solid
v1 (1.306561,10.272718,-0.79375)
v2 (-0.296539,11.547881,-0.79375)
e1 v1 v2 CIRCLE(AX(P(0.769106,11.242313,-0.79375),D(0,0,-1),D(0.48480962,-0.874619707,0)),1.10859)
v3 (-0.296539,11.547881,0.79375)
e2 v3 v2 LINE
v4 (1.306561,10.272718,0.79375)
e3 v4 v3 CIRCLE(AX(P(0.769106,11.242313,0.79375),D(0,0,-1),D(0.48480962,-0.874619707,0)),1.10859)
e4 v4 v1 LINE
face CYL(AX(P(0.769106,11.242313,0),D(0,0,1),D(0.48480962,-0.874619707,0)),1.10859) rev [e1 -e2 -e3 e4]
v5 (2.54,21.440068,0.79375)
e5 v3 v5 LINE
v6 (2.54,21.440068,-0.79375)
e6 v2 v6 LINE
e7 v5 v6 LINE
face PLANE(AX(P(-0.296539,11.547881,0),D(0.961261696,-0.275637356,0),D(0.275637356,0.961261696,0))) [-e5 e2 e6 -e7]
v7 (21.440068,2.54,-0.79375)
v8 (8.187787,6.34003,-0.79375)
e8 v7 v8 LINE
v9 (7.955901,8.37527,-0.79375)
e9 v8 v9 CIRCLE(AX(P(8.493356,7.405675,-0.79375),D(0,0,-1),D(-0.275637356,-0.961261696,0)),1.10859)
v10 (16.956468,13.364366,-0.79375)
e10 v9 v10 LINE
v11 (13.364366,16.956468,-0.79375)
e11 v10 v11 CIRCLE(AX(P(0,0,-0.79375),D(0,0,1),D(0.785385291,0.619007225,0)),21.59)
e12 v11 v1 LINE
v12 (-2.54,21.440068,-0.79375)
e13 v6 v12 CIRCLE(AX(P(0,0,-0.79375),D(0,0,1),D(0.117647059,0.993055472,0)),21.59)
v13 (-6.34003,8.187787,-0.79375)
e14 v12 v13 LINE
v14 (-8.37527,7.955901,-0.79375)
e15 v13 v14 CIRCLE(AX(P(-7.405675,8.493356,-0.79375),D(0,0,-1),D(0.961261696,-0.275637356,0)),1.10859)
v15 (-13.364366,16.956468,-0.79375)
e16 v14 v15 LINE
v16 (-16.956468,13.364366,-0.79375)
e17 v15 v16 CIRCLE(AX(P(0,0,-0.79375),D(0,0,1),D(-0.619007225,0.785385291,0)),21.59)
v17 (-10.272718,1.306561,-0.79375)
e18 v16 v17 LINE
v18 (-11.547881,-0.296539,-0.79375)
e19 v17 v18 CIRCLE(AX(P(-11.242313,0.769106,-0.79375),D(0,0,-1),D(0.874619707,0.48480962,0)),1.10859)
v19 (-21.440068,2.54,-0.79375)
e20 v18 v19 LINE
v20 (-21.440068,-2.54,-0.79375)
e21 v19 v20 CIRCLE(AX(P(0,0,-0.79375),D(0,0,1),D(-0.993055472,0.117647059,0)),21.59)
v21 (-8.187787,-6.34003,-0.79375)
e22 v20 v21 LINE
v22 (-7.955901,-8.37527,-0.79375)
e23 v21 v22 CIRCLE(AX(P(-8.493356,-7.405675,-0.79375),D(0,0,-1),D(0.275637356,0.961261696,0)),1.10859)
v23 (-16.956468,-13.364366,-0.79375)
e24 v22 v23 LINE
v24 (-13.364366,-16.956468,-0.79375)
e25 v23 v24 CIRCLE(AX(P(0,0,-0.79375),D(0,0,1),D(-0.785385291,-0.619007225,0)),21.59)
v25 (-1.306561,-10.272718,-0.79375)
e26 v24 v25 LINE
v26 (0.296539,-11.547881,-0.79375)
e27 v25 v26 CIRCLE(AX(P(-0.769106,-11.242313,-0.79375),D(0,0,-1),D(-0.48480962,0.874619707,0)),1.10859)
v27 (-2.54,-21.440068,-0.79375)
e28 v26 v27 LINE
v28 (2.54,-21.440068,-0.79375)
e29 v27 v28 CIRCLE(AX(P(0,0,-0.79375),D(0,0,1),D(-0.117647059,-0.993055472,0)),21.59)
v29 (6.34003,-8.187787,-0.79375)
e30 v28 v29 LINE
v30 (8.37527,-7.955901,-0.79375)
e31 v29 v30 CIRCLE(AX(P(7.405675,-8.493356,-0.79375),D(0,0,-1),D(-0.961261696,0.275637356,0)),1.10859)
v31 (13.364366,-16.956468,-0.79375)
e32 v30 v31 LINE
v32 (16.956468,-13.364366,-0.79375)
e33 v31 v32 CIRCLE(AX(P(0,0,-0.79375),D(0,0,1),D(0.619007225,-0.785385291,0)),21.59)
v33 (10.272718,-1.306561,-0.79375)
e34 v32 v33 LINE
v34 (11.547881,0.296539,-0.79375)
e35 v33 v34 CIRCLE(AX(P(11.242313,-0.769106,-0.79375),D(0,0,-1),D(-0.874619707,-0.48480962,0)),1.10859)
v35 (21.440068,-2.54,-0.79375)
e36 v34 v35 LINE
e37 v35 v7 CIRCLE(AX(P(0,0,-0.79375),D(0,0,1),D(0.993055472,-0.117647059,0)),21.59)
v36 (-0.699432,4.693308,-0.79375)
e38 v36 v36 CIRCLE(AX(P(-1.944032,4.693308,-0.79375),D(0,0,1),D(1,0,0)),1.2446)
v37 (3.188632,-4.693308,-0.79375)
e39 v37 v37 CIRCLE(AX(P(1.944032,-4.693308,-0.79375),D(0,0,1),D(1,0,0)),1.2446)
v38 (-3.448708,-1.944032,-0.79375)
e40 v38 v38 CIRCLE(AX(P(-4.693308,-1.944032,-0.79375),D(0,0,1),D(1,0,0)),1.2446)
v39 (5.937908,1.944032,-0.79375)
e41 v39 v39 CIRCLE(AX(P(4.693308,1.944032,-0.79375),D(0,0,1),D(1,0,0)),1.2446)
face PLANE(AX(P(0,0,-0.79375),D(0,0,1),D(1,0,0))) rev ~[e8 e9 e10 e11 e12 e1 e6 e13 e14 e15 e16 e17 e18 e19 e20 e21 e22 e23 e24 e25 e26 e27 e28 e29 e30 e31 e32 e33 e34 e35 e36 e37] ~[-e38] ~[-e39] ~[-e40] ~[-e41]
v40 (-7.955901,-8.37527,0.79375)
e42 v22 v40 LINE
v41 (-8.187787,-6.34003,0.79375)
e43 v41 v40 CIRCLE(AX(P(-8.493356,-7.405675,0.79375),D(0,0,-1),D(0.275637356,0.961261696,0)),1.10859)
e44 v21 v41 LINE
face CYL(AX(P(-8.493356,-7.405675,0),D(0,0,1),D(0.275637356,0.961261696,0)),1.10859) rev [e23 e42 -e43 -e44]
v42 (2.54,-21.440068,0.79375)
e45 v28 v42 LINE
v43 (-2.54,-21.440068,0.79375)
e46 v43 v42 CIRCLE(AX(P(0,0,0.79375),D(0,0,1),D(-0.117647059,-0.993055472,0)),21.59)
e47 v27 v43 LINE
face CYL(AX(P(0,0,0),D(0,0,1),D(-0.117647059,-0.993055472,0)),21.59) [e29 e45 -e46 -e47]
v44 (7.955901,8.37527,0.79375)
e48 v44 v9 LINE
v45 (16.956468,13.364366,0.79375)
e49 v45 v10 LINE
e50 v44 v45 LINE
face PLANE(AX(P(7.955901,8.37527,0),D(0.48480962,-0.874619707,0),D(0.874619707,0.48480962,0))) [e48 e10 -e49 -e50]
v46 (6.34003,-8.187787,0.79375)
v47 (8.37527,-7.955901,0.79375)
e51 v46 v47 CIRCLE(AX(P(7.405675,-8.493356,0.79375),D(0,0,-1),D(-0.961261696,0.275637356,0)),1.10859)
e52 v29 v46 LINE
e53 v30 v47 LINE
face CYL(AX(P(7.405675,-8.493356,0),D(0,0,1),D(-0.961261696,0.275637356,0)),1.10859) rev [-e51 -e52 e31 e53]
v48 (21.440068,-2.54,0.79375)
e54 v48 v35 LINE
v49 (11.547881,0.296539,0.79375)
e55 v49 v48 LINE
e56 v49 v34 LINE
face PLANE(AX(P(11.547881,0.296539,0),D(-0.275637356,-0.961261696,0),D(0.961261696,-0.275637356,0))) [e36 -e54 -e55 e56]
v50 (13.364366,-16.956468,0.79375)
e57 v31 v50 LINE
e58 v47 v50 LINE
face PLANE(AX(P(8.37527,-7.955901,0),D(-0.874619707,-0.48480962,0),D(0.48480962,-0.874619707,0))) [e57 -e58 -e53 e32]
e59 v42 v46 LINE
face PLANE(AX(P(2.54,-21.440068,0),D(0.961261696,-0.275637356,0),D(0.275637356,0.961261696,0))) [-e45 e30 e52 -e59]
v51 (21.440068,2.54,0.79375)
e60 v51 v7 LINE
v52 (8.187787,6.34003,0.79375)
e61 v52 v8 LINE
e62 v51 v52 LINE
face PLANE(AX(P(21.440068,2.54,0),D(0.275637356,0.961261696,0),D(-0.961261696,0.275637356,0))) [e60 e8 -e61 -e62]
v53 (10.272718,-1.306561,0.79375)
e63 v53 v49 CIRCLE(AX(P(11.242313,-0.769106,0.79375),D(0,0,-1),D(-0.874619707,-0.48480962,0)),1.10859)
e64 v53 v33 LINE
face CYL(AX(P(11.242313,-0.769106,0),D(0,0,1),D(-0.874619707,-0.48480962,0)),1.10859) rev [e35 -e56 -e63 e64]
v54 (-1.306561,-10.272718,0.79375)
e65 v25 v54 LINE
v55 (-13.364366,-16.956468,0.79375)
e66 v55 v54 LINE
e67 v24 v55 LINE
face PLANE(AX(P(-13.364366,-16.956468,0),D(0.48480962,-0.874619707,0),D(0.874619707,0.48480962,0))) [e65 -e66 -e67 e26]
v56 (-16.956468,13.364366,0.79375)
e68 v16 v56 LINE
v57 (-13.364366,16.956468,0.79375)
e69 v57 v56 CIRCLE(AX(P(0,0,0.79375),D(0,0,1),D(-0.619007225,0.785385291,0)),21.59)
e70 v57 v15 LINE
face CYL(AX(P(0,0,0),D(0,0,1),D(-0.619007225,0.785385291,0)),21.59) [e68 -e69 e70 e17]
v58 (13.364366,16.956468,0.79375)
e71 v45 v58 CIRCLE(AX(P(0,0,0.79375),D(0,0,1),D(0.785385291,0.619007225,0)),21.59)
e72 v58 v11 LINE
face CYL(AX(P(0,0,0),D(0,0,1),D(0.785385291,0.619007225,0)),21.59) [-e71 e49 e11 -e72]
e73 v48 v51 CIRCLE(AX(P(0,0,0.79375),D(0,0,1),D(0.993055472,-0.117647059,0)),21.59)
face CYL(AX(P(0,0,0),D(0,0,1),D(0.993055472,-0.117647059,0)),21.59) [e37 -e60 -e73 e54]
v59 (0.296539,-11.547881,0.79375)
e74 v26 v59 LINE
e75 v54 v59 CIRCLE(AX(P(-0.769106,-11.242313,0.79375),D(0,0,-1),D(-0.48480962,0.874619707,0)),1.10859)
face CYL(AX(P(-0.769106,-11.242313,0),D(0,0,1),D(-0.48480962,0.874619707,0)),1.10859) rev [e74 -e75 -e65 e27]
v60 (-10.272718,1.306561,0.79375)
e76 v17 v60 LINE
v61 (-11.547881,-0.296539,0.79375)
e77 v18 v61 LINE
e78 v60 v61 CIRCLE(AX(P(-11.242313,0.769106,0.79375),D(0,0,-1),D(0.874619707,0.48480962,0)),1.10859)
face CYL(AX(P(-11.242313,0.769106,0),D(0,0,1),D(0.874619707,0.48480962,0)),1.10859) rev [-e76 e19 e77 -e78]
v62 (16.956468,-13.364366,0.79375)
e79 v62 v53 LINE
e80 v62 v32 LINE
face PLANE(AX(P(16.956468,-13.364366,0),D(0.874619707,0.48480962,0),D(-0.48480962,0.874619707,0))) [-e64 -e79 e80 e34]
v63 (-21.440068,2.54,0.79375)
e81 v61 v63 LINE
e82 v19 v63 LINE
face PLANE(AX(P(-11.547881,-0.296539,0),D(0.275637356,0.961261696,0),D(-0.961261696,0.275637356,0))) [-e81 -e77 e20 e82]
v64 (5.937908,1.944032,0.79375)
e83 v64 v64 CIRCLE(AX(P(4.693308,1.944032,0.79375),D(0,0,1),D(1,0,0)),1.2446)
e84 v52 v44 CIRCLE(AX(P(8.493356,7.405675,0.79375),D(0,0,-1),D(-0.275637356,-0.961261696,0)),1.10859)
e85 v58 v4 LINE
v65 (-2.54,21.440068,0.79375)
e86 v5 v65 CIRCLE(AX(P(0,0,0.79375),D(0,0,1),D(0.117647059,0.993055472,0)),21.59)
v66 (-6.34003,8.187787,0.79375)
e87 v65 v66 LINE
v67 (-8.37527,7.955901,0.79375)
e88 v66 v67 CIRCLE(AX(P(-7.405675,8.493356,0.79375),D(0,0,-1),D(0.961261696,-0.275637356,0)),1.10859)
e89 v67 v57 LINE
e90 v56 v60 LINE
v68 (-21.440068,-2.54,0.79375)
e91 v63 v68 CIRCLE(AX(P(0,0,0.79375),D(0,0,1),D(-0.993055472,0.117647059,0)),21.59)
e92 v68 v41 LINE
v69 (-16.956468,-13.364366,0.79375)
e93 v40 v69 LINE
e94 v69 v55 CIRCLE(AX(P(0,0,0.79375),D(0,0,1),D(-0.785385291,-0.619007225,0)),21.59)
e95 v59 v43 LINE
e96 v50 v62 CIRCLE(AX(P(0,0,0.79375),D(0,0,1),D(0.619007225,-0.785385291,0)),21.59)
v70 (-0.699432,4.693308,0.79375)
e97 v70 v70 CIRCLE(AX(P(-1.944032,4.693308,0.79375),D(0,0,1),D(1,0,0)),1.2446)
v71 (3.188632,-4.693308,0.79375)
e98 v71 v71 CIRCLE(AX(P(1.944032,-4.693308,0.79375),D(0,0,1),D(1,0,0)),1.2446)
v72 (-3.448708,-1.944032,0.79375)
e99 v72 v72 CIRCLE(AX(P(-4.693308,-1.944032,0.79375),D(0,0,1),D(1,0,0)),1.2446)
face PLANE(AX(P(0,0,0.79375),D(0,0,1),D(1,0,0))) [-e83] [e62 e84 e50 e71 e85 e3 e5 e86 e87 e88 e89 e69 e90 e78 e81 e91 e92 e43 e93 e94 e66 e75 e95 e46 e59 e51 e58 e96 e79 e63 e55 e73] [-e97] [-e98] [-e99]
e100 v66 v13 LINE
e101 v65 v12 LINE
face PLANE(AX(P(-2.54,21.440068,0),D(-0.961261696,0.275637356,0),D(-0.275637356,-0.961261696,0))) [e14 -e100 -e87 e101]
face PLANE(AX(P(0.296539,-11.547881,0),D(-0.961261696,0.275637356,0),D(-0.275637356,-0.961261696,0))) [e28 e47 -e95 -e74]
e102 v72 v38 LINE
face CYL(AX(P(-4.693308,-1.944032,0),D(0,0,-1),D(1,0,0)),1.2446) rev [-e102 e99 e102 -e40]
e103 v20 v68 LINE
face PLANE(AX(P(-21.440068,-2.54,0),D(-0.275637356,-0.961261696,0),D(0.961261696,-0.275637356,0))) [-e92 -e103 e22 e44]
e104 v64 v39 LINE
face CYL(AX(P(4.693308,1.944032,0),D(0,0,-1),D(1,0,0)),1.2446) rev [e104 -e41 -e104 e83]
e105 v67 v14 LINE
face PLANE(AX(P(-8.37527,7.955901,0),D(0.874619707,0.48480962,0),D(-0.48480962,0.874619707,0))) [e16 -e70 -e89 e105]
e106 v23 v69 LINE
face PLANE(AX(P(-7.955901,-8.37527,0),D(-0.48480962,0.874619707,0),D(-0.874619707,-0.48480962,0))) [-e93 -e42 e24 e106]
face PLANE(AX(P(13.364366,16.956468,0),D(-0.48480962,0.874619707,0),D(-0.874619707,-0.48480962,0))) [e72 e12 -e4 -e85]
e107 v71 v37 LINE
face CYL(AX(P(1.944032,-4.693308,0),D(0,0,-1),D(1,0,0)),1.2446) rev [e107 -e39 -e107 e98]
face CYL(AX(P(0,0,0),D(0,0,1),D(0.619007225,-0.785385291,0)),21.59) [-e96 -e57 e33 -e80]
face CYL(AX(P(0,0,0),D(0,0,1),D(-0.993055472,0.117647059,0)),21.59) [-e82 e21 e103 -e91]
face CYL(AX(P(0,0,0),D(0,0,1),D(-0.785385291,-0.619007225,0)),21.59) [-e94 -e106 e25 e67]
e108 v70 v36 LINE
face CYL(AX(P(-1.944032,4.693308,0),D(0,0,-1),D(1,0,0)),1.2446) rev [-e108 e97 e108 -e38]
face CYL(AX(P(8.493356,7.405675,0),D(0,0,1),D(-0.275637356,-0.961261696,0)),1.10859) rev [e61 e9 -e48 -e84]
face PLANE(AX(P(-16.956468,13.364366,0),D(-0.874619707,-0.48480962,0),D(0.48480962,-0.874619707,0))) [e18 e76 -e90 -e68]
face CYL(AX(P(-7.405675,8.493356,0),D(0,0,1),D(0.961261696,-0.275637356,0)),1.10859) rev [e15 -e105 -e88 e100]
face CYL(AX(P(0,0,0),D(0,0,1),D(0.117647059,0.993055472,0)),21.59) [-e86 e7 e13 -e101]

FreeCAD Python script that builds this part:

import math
import FreeCAD as App
import Part
import Sketcher
Q = App.Units.Quantity

doc = App.newDocument("Part")
body = doc.addObject("PartDesign::Body", "Body")

# Sketch on XY plane
sketch1 = body.newObject("Sketcher::SketchObject", "Sketch")
sketch1.AttachmentSupport = (doc.getObject("XY_Plane"), [""])
sketch1.MapMode = "FlatFace"
sketch1.addGeometry(Part.ArcOfCircle(Part.Circle(App.Vector(0, 0, 0), App.Vector(0, 0, 1), 21.6), math.radians(128.24), math.radians(141.76)), False)
sketch1.addGeometry(Part.LineSegment(App.Vector(-17, 13.4, 0), App.Vector(-10.3, 1.3, 0)), False)
sketch1.addGeometry(Part.ArcOfCircle(Part.Circle(App.Vector(-11.2, 0.8, 0), App.Vector(0, 0, 1), 1.1), math.radians(-106), math.radians(29)), False)
sketch1.addGeometry(Part.LineSegment(App.Vector(-11.5, -0.3, 0), App.Vector(-21.4, 2.5, 0)), False)
sketch1.addGeometry(Part.ArcOfCircle(Part.Circle(App.Vector(0, 0, 0), App.Vector(0, 0, 1), 21.6), math.radians(173.24), math.radians(186.76)), False)
sketch1.addGeometry(Part.LineSegment(App.Vector(-21.4, -2.5, 0), App.Vector(-8.2, -6.3, 0)), False)
sketch1.addGeometry(Part.ArcOfCircle(Part.Circle(App.Vector(-8.5, -7.4, 0), App.Vector(0, 0, 1), 1.1), math.radians(-61), math.radians(74)), False)
sketch1.addGeometry(Part.LineSegment(App.Vector(-8, -8.4, 0), App.Vector(-17, -13.4, 0)), False)
sketch1.addGeometry(Part.ArcOfCircle(Part.Circle(App.Vector(0, 0, 0), App.Vector(0, 0, 1), 21.6), math.radians(-141.76), math.radians(-128.24)), False)
sketch1.addGeometry(Part.LineSegment(App.Vector(-13.4, -17, 0), App.Vector(-1.3, -10.3, 0)), False)
sketch1.addGeometry(Part.ArcOfCircle(Part.Circle(App.Vector(-0.8, -11.2, 0), App.Vector(0, 0, 1), 1.1), math.radians(-16), math.radians(119)), False)
sketch1.addGeometry(Part.LineSegment(App.Vector(0.3, -11.5, 0), App.Vector(-2.5, -21.4, 0)), False)
sketch1.addGeometry(Part.ArcOfCircle(Part.Circle(App.Vector(0, 0, 0), App.Vector(0, 0, 1), 21.6), math.radians(-96.76), math.radians(-83.24)), False)
sketch1.addGeometry(Part.LineSegment(App.Vector(2.5, -21.4, 0), App.Vector(6.3, -8.2, 0)), False)
sketch1.addGeometry(Part.ArcOfCircle(Part.Circle(App.Vector(7.4, -8.5, 0), App.Vector(0, 0, 1), 1.1), math.radians(29), math.radians(164)), False)
sketch1.addGeometry(Part.LineSegment(App.Vector(8.4, -8, 0), App.Vector(13.4, -17, 0)), False)
sketch1.addGeometry(Part.ArcOfCircle(Part.Circle(App.Vector(0, 0, 0), App.Vector(0, 0, 1), 21.6), math.radians(-51.76), math.radians(-38.24)), False)
sketch1.addGeometry(Part.LineSegment(App.Vector(17, -13.4, 0), App.Vector(10.3, -1.3, 0)), False)
sketch1.addGeometry(Part.ArcOfCircle(Part.Circle(App.Vector(11.2, -0.8, 0), App.Vector(0, 0, 1), 1.1), math.radians(74), math.radians(209)), False)
sketch1.addGeometry(Part.LineSegment(App.Vector(11.5, 0.3, 0), App.Vector(21.4, -2.5, 0)), False)
sketch1.addGeometry(Part.ArcOfCircle(Part.Circle(App.Vector(0, 0, 0), App.Vector(0, 0, 1), 21.6), math.radians(-6.76), math.radians(6.76)), False)
sketch1.addGeometry(Part.LineSegment(App.Vector(21.4, 2.5, 0), App.Vector(8.2, 6.3, 0)), False)
sketch1.addGeometry(Part.ArcOfCircle(Part.Circle(App.Vector(8.5, 7.4, 0), App.Vector(0, 0, 1), 1.1), math.radians(119), math.radians(254)), False)
sketch1.addGeometry(Part.LineSegment(App.Vector(8, 8.4, 0), App.Vector(17, 13.4, 0)), False)
sketch1.addGeometry(Part.ArcOfCircle(Part.Circle(App.Vector(0, 0, 0), App.Vector(0, 0, 1), 21.6), math.radians(38.24), math.radians(51.76)), False)
sketch1.addGeometry(Part.LineSegment(App.Vector(13.4, 17, 0), App.Vector(1.3, 10.3, 0)), False)
sketch1.addGeometry(Part.ArcOfCircle(Part.Circle(App.Vector(0.8, 11.2, 0), App.Vector(0, 0, 1), 1.1), math.radians(164), math.radians(299)), False)
sketch1.addGeometry(Part.LineSegment(App.Vector(-0.3, 11.5, 0), App.Vector(2.5, 21.4, 0)), False)
sketch1.addGeometry(Part.ArcOfCircle(Part.Circle(App.Vector(0, 0, 0), App.Vector(0, 0, 1), 21.6), math.radians(83.24), math.radians(96.76)), False)
sketch1.addGeometry(Part.LineSegment(App.Vector(-2.5, 21.4, 0), App.Vector(-6.3, 8.2, 0)), False)
sketch1.addGeometry(Part.ArcOfCircle(Part.Circle(App.Vector(-7.4, 8.5, 0), App.Vector(0, 0, 1), 1.1), math.radians(-151), math.radians(-16)), False)
sketch1.addGeometry(Part.LineSegment(App.Vector(-8.4, 8, 0), App.Vector(-13.4, 17, 0)), False)
sketch1.addGeometry(Part.Circle(App.Vector(-4.7, -1.9, 0), App.Vector(0, 0, 1), 1.2), False)
sketch1.addGeometry(Part.Circle(App.Vector(1.9, -4.7, 0), App.Vector(0, 0, 1), 1.2), False)
sketch1.addGeometry(Part.Circle(App.Vector(-1.9, 4.7, 0), App.Vector(0, 0, 1), 1.2), False)
sketch1.addGeometry(Part.Circle(App.Vector(4.7, 1.9, 0), App.Vector(0, 0, 1), 1.2), False)
sketch1.addConstraint(Sketcher.Constraint("Coincident", 0, 2, 1, 1))
sketch1.addConstraint(Sketcher.Constraint("Tangent", 1, 2, 2, 2))
sketch1.addConstraint(Sketcher.Constraint("Tangent", 2, 1, 3, 1))
sketch1.addConstraint(Sketcher.Constraint("Coincident", 3, 2, 4, 1))
sketch1.addConstraint(Sketcher.Constraint("Coincident", 4, 2, 5, 1))
sketch1.addConstraint(Sketcher.Constraint("Tangent", 5, 2, 6, 2))
sketch1.addConstraint(Sketcher.Constraint("Tangent", 6, 1, 7, 1))
sketch1.addConstraint(Sketcher.Constraint("Coincident", 7, 2, 8, 1))
sketch1.addConstraint(Sketcher.Constraint("Coincident", 8, 2, 9, 1))
sketch1.addConstraint(Sketcher.Constraint("Tangent", 9, 2, 10, 2))
sketch1.addConstraint(Sketcher.Constraint("Tangent", 10, 1, 11, 1))
sketch1.addConstraint(Sketcher.Constraint("Coincident", 11, 2, 12, 1))
sketch1.addConstraint(Sketcher.Constraint("Coincident", 12, 2, 13, 1))
sketch1.addConstraint(Sketcher.Constraint("Tangent", 13, 2, 14, 2))
sketch1.addConstraint(Sketcher.Constraint("Tangent", 14, 1, 15, 1))
sketch1.addConstraint(Sketcher.Constraint("Coincident", 15, 2, 16, 1))
sketch1.addConstraint(Sketcher.Constraint("Coincident", 16, 2, 17, 1))
sketch1.addConstraint(Sketcher.Constraint("Tangent", 17, 2, 18, 2))
sketch1.addConstraint(Sketcher.Constraint("Tangent", 18, 1, 19, 1))
sketch1.addConstraint(Sketcher.Constraint("Coincident", 19, 2, 20, 1))
sketch1.addConstraint(Sketcher.Constraint("Coincident", 20, 2, 21, 1))
sketch1.addConstraint(Sketcher.Constraint("Tangent", 21, 2, 22, 2))
sketch1.addConstraint(Sketcher.Constraint("Tangent", 22, 1, 23, 1))
sketch1.addConstraint(Sketcher.Constraint("Coincident", 23, 2, 24, 1))
sketch1.addConstraint(Sketcher.Constraint("Coincident", 24, 2, 25, 1))
sketch1.addConstraint(Sketcher.Constraint("Tangent", 25, 2, 26, 2))
sketch1.addConstraint(Sketcher.Constraint("Tangent", 26, 1, 27, 1))
sketch1.addConstraint(Sketcher.Constraint("Coincident", 27, 2, 28, 1))
sketch1.addConstraint(Sketcher.Constraint("Coincident", 28, 2, 29, 1))
sketch1.addConstraint(Sketcher.Constraint("Tangent", 29, 2, 30, 2))
sketch1.addConstraint(Sketcher.Constraint("Tangent", 30, 1, 31, 1))
sketch1.addConstraint(Sketcher.Constraint("Coincident", 31, 2, 0, 1))
sketch1.addConstraint(Sketcher.Constraint("Coincident", 0, 3, -1, 1))
sketch1.addConstraint(Sketcher.Constraint("Coincident", 4, 3, -1, 1))
sketch1.addConstraint(Sketcher.Constraint("Coincident", 8, 3, -1, 1))
sketch1.addConstraint(Sketcher.Constraint("Coincident", 12, 3, -1, 1))
sketch1.addConstraint(Sketcher.Constraint("Coincident", 16, 3, -1, 1))
sketch1.addConstraint(Sketcher.Constraint("Coincident", 20, 3, -1, 1))
sketch1.addConstraint(Sketcher.Constraint("Coincident", 24, 3, -1, 1))
sketch1.addConstraint(Sketcher.Constraint("Coincident", 28, 3, -1, 1))
sketch1.addConstraint(Sketcher.Constraint("Equal", 0, 4))
sketch1.addConstraint(Sketcher.Constraint("Equal", 2, 6))
sketch1.addConstraint(Sketcher.Constraint("Equal", 4, 8))
sketch1.addConstraint(Sketcher.Constraint("Equal", 6, 10))
sketch1.addConstraint(Sketcher.Constraint("Equal", 8, 12))
sketch1.addConstraint(Sketcher.Constraint("Equal", 10, 14))
sketch1.addConstraint(Sketcher.Constraint("Equal", 12, 16))
sketch1.addConstraint(Sketcher.Constraint("Equal", 14, 18))
sketch1.addConstraint(Sketcher.Constraint("Equal", 16, 20))
sketch1.addConstraint(Sketcher.Constraint("Equal", 18, 22))
sketch1.addConstraint(Sketcher.Constraint("Equal", 20, 24))
sketch1.addConstraint(Sketcher.Constraint("Equal", 22, 26))
sketch1.addConstraint(Sketcher.Constraint("Equal", 24, 28))
sketch1.addConstraint(Sketcher.Constraint("Equal", 26, 30))
sketch1.addConstraint(Sketcher.Constraint("Equal", 32, 33))
sketch1.addConstraint(Sketcher.Constraint("Equal", 33, 34))
sketch1.addConstraint(Sketcher.Constraint("Equal", 34, 35))
sketch1.addConstraint(Sketcher.Constraint("Symmetric", 2, 3, 18, 3, -1, 1))
sketch1.addConstraint(Sketcher.Constraint("Symmetric", 6, 3, 22, 3, -1, 1))
sketch1.addConstraint(Sketcher.Constraint("Symmetric", 10, 3, 26, 3, -1, 1))
sketch1.addConstraint(Sketcher.Constraint("Symmetric", 14, 3, 30, 3, -1, 1))
sketch1.addConstraint(Sketcher.Constraint("Symmetric", 33, 3, 34, 3, -1, 1))
sketch1.addConstraint(Sketcher.Constraint("Symmetric", 32, 3, 35, 3, -1, 1))
sketch1.addConstraint(Sketcher.Constraint("Parallel", 3, 5))
sketch1.addConstraint(Sketcher.Constraint("Perpendicular", 1, 7))
sketch1.addConstraint(Sketcher.Constraint("Parallel", 7, 9))
sketch1.addConstraint(Sketcher.Constraint("Perpendicular", 5, 11))
sketch1.addConstraint(Sketcher.Constraint("Parallel", 11, 13))
sketch1.addConstraint(Sketcher.Constraint("Perpendicular", 9, 15))
sketch1.addConstraint(Sketcher.Constraint("Parallel", 15, 17))
sketch1.addConstraint(Sketcher.Constraint("Perpendicular", 13, 19))
sketch1.addConstraint(Sketcher.Constraint("Parallel", 19, 21))
sketch1.addConstraint(Sketcher.Constraint("Perpendicular", 17, 23))
sketch1.addConstraint(Sketcher.Constraint("Parallel", 23, 25))
sketch1.addConstraint(Sketcher.Constraint("Perpendicular", 21, 27))
sketch1.addConstraint(Sketcher.Constraint("Parallel", 27, 29))
sketch1.addConstraint(Sketcher.Constraint("Perpendicular", 25, 31))
sketch1.addConstraint(Sketcher.Constraint("Horizontal", 11, 2, 12, 2))
sketch1.addConstraint(Sketcher.Constraint("Horizontal", 8, 2, 15, 2))
sketch1.addConstraint(Sketcher.Constraint("Horizontal", 7, 2, 16, 2))
sketch1.addConstraint(Sketcher.Constraint("Horizontal", 4, 2, 19, 2))
sketch1.addConstraint(Sketcher.Constraint("Equal", 1, 5))
sketch1.addConstraint(Sketcher.Constraint("Equal", 3, 7))
sketch1.addConstraint(Sketcher.Constraint("Equal", 5, 9))
sketch1.addConstraint(Sketcher.Constraint("Equal", 7, 11))
sketch1.addConstraint(Sketcher.Constraint("Radius", 0, Q("0.85 in")))
sketch1.addConstraint(Sketcher.Constraint("Diameter", 32, Q("0.098 in")))
sketch1.addConstraint(Sketcher.Constraint("Angle", 1, Q("-61 deg")))
sketch1.addConstraint(Sketcher.Constraint("DistanceY", -1, 1, 3, 2, Q("0.1 in")))
sketch1.addConstraint(Sketcher.Constraint("Radius", 2, Q("1.10859 mm")))
sketch1.addConstraint(Sketcher.Constraint("DistanceY", 5, 2, 32, 3, Q("4.395999 mm")))
sketch1.addConstraint(Sketcher.Constraint("DistanceX", 33, 3, 13, 2, Q("4.395999 mm")))
sketch1.addConstraint(Sketcher.Constraint("DistanceX", 32, 3, -1, 1, Q("4.693308 mm")))
sketch1.addConstraint(Sketcher.Constraint("DistanceY", 33, 3, -1, 1, Q("4.693308 mm")))
pad1 = body.newObject("PartDesign::Pad", "Pad")
pad1.Profile = sketch1
pad1.Length = Q("0.0625 in")
pad1.Midplane = True

doc.recompute()
